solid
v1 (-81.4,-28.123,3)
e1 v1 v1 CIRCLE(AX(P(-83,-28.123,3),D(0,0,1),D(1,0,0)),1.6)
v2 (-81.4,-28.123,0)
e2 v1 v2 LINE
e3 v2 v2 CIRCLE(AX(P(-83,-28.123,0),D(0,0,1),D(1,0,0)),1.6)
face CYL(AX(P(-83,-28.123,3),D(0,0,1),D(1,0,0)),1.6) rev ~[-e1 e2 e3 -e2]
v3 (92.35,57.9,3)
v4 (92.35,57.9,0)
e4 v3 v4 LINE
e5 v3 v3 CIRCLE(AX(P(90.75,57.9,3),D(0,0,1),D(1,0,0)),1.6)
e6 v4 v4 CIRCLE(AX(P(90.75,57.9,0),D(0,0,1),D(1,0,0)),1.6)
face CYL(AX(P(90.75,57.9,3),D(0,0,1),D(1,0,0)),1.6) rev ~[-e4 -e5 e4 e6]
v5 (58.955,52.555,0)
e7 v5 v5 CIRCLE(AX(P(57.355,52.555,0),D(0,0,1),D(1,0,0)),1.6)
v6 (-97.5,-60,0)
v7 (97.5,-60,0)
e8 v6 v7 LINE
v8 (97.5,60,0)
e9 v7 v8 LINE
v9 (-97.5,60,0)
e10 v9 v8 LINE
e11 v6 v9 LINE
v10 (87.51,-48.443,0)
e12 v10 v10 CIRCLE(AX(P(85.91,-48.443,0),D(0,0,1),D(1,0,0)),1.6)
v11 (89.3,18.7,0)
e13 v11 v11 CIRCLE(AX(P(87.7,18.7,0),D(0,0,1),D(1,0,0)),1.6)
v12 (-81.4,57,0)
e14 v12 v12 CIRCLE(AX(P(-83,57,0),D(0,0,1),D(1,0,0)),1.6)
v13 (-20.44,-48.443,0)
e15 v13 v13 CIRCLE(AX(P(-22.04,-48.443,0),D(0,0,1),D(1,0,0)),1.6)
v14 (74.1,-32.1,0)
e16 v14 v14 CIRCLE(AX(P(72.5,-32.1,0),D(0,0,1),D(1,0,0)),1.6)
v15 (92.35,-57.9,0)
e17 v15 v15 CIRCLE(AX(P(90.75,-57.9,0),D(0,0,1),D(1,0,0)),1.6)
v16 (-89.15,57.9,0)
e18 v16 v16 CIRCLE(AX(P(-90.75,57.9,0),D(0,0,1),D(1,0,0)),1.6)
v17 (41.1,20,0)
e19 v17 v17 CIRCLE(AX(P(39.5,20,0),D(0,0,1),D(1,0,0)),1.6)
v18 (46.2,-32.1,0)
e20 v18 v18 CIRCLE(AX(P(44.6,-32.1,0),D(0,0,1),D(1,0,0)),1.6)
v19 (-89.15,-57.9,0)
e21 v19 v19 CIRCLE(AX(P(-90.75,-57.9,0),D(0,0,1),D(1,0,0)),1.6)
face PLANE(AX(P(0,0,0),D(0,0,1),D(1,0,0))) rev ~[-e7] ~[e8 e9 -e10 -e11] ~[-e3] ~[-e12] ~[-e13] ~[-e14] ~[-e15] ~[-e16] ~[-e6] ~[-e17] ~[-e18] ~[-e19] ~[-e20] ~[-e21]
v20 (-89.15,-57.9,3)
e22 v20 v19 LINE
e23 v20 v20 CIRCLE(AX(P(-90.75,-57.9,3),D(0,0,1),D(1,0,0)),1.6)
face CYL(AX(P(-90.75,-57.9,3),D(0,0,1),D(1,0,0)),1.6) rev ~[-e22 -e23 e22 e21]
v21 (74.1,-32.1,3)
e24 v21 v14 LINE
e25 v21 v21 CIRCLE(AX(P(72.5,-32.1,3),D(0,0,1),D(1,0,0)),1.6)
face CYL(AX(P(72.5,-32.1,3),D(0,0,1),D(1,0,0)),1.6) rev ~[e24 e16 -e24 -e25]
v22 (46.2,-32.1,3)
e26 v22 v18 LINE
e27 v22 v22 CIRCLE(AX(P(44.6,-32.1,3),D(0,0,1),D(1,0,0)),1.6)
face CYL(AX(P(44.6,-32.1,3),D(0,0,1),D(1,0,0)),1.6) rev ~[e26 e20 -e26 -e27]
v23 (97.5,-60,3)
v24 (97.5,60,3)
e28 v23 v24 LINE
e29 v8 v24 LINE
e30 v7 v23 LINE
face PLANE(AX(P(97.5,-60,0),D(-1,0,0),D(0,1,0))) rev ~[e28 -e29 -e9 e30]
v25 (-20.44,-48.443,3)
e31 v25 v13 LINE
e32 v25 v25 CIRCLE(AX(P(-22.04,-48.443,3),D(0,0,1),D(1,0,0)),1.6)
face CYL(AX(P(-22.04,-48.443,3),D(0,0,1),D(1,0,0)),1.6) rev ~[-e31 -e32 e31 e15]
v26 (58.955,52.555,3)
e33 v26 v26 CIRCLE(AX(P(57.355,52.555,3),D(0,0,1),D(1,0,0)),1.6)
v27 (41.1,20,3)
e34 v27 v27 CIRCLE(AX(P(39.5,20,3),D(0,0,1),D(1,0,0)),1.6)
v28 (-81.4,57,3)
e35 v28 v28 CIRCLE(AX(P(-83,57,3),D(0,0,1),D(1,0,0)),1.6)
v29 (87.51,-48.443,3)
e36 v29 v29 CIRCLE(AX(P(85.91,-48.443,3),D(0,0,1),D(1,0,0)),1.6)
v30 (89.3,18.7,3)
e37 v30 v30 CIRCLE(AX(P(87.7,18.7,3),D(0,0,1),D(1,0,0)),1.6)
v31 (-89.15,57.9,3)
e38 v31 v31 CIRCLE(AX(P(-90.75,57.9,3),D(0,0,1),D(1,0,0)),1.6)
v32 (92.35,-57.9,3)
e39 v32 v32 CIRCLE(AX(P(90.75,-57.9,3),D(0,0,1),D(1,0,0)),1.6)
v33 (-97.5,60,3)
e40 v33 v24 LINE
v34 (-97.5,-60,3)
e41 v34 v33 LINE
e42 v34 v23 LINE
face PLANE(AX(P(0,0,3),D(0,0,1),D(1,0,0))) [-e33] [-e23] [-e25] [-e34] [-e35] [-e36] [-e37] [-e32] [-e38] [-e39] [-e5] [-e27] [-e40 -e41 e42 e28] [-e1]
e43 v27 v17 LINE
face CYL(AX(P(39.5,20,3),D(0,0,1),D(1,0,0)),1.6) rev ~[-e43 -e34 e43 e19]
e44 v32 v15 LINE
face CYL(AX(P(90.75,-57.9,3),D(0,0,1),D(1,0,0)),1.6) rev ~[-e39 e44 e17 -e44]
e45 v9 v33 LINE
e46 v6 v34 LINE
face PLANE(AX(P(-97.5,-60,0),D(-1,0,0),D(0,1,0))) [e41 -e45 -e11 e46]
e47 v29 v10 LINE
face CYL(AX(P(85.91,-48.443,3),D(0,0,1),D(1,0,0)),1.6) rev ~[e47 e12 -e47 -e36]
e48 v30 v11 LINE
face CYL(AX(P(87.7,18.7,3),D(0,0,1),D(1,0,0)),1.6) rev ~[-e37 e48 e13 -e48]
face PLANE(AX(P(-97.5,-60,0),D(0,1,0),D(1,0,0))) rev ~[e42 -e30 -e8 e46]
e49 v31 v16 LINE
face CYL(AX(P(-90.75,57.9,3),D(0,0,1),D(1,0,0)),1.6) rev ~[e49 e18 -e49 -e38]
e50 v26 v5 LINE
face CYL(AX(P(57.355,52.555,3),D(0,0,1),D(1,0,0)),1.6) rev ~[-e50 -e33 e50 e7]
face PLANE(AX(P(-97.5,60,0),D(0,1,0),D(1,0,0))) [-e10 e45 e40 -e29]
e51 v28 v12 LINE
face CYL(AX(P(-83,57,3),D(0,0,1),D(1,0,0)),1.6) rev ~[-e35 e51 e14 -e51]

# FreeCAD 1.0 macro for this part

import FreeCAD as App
import Part
import Sketcher
from FreeCAD import Vector
Q = App.Units.Quantity

doc = App.newDocument("Part")
body = doc.addObject("PartDesign::Body", "Body")

# Sketch on XY plane
sketch1 = doc.addObject("Sketcher::SketchObject", "Sketch")
body.addObject(sketch1)
sketch1.AttachmentSupport = (doc.XY_Plane, [""])
sketch1.MapMode = "FlatFace"
sketch1.addGeometry([
    Part.LineSegment(Vector(-98, 60, 0), Vector(-98, -60, 0)),
    Part.LineSegment(Vector(-98, -60, 0), Vector(98, -60, 0)),
    Part.LineSegment(Vector(98, -60, 0), Vector(98, 60, 0)),
    Part.LineSegment(Vector(98, 60, 0), Vector(-98, 60, 0)),
], False)
sketch1.addConstraint([
    Sketcher.Constraint("Coincident", 0, 2, 1, 1),
    Sketcher.Constraint("Coincident", 1, 2, 2, 1),
    Sketcher.Constraint("Coincident", 2, 2, 3, 1),
    Sketcher.Constraint("Coincident", 3, 2, 0, 1),
    Sketcher.Constraint("Vertical", 0),
    Sketcher.Constraint("Horizontal", 1),
    Sketcher.Constraint("Vertical", 2),
    Sketcher.Constraint("Horizontal", 3),
    Sketcher.Constraint("Symmetric", 0, 2, 2, 2, -1, 1),
    Sketcher.Constraint("DistanceX", 1, 1, 1, 2, Q("195 mm")),
    Sketcher.Constraint("DistanceY", 0, 2, 0, 1, Q("120 mm")),
])
pad1 = doc.addObject("PartDesign::Pad", "Pad")
body.addObject(pad1)
pad1.Profile = sketch1
pad1.Length = 3

# Sketch on XY plane
sketch2 = doc.addObject("Sketcher::SketchObject", "Sketch001")
body.addObject(sketch2)
sketch2.AttachmentSupport = (doc.XY_Plane, [""])
sketch2.MapMode = "FlatFace"
sketch2.AttachmentOffset = App.Placement(Vector(0, 0, 3), App.Rotation())
sketch2.addGeometry([
    Part.Circle(Vector(-90.8, 57.9, 0), Vector(0, 0, 1), 1.6),
    Part.Circle(Vector(90.8, 57.9, 0), Vector(0, 0, 1), 1.6),
    Part.Circle(Vector(-90.8, -57.9, 0), Vector(0, 0, 1), 1.6),
    Part.Circle(Vector(90.8, -57.9, 0), Vector(0, 0, 1), 1.6),
], False)
sketch2.addConstraint([
    Sketcher.Constraint("Equal", 0, 1),
    Sketcher.Constraint("Equal", 1, 2),
    Sketcher.Constraint("Equal", 2, 3),
    Sketcher.Constraint("Symmetric", 1, 3, 2, 3, -1, 1),
    Sketcher.Constraint("Symmetric", 0, 3, 3, 3, -1, 1),
    Sketcher.Constraint("Symmetric", 0, 3, 1, 3, -2),
    Sketcher.Constraint("Diameter", 0, Q("3.2 mm")),
    Sketcher.Constraint("DistanceY", -1, 1, 0, 3, Q("57.9 mm")),
    Sketcher.Constraint("DistanceX", 0, 3, 1, 3, Q("181.5 mm")),
])
pocket1 = doc.addObject("PartDesign::Pocket", "Pocket")
body.addObject(pocket1)
pocket1.Profile = sketch2
pocket1.Length = 5

# Sketch on XY plane
sketch3 = doc.addObject("Sketcher::SketchObject", "Sketch002")
body.addObject(sketch3)
sketch3.AttachmentSupport = (doc.XY_Plane, [""])
sketch3.MapMode = "FlatFace"
sketch3.AttachmentOffset = App.Placement(Vector(0, 0, 3), App.Rotation())
sketch3.addGeometry([
    Part.Circle(Vector(-83, 57, 0), Vector(0, 0, 1), 1.6),  # 0
    Part.Circle(Vector(57.4, 52.6, 0), Vector(0, 0, 1), 1.6),  # 1
    Part.Circle(Vector(-83, -28.1, 0), Vector(0, 0, 1), 1.6),  # 2
    Part.Circle(Vector(-22, -48.4, 0), Vector(0, 0, 1), 1.6),  # 3
    Part.Circle(Vector(85.9, -48.4, 0), Vector(0, 0, 1), 1.6),  # 4
    Part.Circle(Vector(39.5, 20, 0), Vector(0, 0, 1), 1.6),  # 5
    Part.Circle(Vector(44.6, -32.1, 0), Vector(0, 0, 1), 1.6),  # 6
    Part.Circle(Vector(72.5, -32.1, 0), Vector(0, 0, 1), 1.6),  # 7
    Part.Circle(Vector(87.7, 18.7, 0), Vector(0, 0, 1), 1.6),  # 8
], False)
sketch3.addConstraint([
    Sketcher.Constraint("Equal", 0, 1),
    Sketcher.Constraint("Equal", 1, 2),
    Sketcher.Constraint("Equal", 2, 3),
    Sketcher.Constraint("Equal", 3, 4),
    Sketcher.Constraint("Equal", 4, 5),
    Sketcher.Constraint("Equal", 5, 6),
    Sketcher.Constraint("Equal", 6, 7),
    Sketcher.Constraint("Equal", 7, 8),
    Sketcher.Constraint("Horizontal", 3, 3, 4, 3),
    Sketcher.Constraint("Horizontal", 6, 3, 7, 3),
    Sketcher.Constraint("Vertical", 0, 3, 2, 3),
    Sketcher.Constraint("Diameter", 0, Q("3.2 mm")),
    Sketcher.Constraint("DistanceX", 0, 3, -1, 1, Q("83 mm")),
    Sketcher.Constraint("DistanceY", -1, 1, 0, 3, Q("57 mm")),
    Sketcher.Constraint("DistanceY", -1, 1, 5, 3, Q("20 mm")),
    Sketcher.Constraint("DistanceX", 5, 3, 7, 3, Q("33 mm")),
    Sketcher.Constraint("DistanceX", -1, 1, 5, 3, Q("39.5 mm")),
    Sketcher.Constraint("DistanceX", -1, 1, 6, 3, Q("44.6 mm")),
    Sketcher.Constraint("DistanceY", 6, 3, -1, 1, Q("32.1 mm")),
    Sketcher.Constraint("DistanceX", -1, 1, 8, 3, Q("87.7 mm")),
    Sketcher.Constraint("DistanceY", -1, 1, 8, 3, Q("18.7 mm")),
    Sketcher.Constraint("DistanceX", 3, 3, -1, 1, Q("22.04 mm")),
    Sketcher.Constraint("DistanceX", -1, 1, 4, 3, Q("85.91 mm")),
    Sketcher.Constraint("DistanceY", 3, 3, 2, 3, Q("20.32 mm")),
    Sketcher.Constraint("DistanceX", -1, 1, 1, 3, Q("57.355 mm")),
    Sketcher.Constraint("DistanceY", -1, 1, 1, 3, Q("52.555 mm")),
    Sketcher.Constraint("DistanceY", 2, 3, -1, 1, Q("28.123 mm")),
])
pocket2 = doc.addObject("PartDesign::Pocket", "Pocket001")
body.addObject(pocket2)
pocket2.Profile = sketch3
pocket2.Length = 5

doc.recompute()
